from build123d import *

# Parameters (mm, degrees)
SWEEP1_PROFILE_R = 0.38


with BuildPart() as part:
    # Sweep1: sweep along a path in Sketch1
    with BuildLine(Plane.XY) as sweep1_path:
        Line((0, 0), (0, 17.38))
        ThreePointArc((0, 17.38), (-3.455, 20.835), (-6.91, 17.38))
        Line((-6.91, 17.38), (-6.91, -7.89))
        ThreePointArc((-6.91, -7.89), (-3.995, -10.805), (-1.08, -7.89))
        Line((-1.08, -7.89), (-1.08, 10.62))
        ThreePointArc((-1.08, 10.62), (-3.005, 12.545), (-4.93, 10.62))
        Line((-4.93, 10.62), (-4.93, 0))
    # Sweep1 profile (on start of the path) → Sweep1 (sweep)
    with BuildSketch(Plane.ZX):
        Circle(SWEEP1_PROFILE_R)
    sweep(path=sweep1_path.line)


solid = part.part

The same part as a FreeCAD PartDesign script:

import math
import FreeCAD as App
import Part
import Sketcher
from FreeCAD import Vector

doc = App.newDocument("Part")
body = doc.addObject("PartDesign::Body", "Body")

# Sketch on XZ plane
sketch1 = doc.addObject("Sketcher::SketchObject", "Sketch")
body.addObject(sketch1)
sketch1.AttachmentSupport = (doc.XZ_Plane, [""])
sketch1.MapMode = "FlatFace"
sketch1.addGeometry(Part.Circle(Vector(0, 0, 0), Vector(0, 0, 1), 0.38), False)
sketch1.addConstraint([
    Sketcher.Constraint("Coincident", 0, 3, -1, 1),
    Sketcher.Constraint("Diameter", 0, 0.76),
])

# Sketch on XY plane
sketch2 = doc.addObject("Sketcher::SketchObject", "Sketch001")
body.addObject(sketch2)
sketch2.AttachmentSupport = (doc.XY_Plane, [""])
sketch2.MapMode = "FlatFace"
sketch2.addGeometry([
    Part.LineSegment(Vector(0, 0, 0), Vector(0, 17.4, 0)),  # 0
    Part.ArcOfCircle(Part.Circle(Vector(-3.5, 17.4, 0), Vector(0, 0, 1), 3.5), math.radians(0), math.radians(180)),  # 1
    Part.LineSegment(Vector(-6.9, 17.4, 0), Vector(-6.9, -7.9, 0)),  # 2
    Part.ArcOfCircle(Part.Circle(Vector(-4, -7.9, 0), Vector(0, 0, 1), 2.9), math.radians(180), math.radians(360)),  # 3
    Part.LineSegment(Vector(-1.1, -7.9, 0), Vector(-1.1, 10.6, 0)),  # 4
    Part.ArcOfCircle(Part.Circle(Vector(-3, 10.6, 0), Vector(0, 0, 1), 1.9), math.radians(0), math.radians(180)),  # 5
    Part.LineSegment(Vector(-4.9, 10.6, 0), Vector(-4.9, 0, 0)),  # 6
], False)
sketch2.addConstraint([
    Sketcher.Constraint("Tangent", 0, 2, 1, 1),
    Sketcher.Constraint("Tangent", 1, 2, 2, 1),
    Sketcher.Constraint("Tangent", 2, 2, 3, 1),
    Sketcher.Constraint("Tangent", 3, 2, 4, 1),
    Sketcher.Constraint("Tangent", 4, 2, 5, 1),
    Sketcher.Constraint("Tangent", 5, 2, 6, 1),
    Sketcher.Constraint("Vertical", 0),
    Sketcher.Constraint("Vertical", 2),
    Sketcher.Constraint("Vertical", 4),
    Sketcher.Constraint("Vertical", 6),
    Sketcher.Constraint("Coincident", 0, 1, -1, 1),
    Sketcher.Constraint("PointOnObject", 6, 2, -1),
    Sketcher.Constraint("Radius", 1, 3.455),
    Sketcher.Constraint("Radius", 3, 2.915),
    Sketcher.Constraint("Radius", 5, 1.925),
    Sketcher.Constraint("DistanceY", 0, 1, 0, 2, 17.38),
    Sketcher.Constraint("DistanceY", 2, 2, 2, 1, 25.27),
    Sketcher.Constraint("DistanceY", 4, 1, 4, 2, 18.51),
])
doc.recompute()

additivepipe = doc.addObject("PartDesign::AdditivePipe", "AdditivePipe")
body.addObject(additivepipe)
additivepipe.Profile = sketch1
additivepipe.Spine = (sketch2, ["Edge1", "Edge2", "Edge3", "Edge4", "Edge5", "Edge6", "Edge7"])

doc.recompute()
